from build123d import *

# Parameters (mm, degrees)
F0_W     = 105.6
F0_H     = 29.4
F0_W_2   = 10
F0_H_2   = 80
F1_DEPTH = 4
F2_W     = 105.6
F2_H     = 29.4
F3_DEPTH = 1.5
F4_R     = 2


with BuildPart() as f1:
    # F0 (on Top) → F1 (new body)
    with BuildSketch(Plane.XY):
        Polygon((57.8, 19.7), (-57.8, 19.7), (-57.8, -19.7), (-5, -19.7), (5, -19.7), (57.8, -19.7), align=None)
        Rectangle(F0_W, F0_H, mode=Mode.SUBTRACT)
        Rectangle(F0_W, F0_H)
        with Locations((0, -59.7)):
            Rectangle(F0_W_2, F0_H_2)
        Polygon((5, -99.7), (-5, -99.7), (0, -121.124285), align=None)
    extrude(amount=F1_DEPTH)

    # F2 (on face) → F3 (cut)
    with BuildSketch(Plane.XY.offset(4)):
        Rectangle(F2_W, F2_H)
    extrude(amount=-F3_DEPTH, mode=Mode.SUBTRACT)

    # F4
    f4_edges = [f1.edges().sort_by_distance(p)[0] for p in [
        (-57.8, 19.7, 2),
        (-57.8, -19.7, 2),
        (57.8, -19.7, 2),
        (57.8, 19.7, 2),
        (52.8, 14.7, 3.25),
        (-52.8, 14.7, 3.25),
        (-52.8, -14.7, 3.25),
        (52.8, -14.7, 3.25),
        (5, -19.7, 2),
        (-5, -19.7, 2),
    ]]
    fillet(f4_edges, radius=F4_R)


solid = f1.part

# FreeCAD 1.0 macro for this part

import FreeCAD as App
import Part
import Sketcher
from FreeCAD import Vector


def edges_at(feature, points):
    """Names of the edges that pass closest to the given points."""
    edges = feature.Shape.Edges
    near = lambda p: min(range(len(edges)), key=lambda i: edges[i].distToShape(Part.Vertex(*p))[0])
    return sorted({f"Edge{near(p) + 1}" for p in points})


def add_polygon(sketch, points):
    """Adds a closed chain of lines whose ends are joined by coincident constraints."""
    first, n = sketch.GeometryCount, len(points)
    for a, b in zip(points, points[1:] + points[:1]):
        sketch.addGeometry(Part.LineSegment(App.Vector(*a, 0), App.Vector(*b, 0)), False)
    for i in range(n):
        sketch.addConstraint(Sketcher.Constraint("Coincident", first + i, 2, first + (i + 1) % n, 1))

doc = App.newDocument("Part")
params = doc.addObject("Spreadsheet::Sheet", "Params")
for row, (alias, value) in enumerate([
    ("sketch1_height", "80 mm"),
    ("sketch1_length", "22 mm"),
    ("sketch1_width", "115.6 mm"),
    ("sketch1_width2", "52.8 mm"),
    ("sketch1_height2", "39.4 mm"),
    ("pad1_length", "4 mm"),
    ("sketch2_width", "105.6 mm"),
    ("sketch2_height", "29.4 mm"),
    ("pocket1_length", "1.5 mm"),
    ("fillet_radius", "2 mm"),
], start=1):
    params.set(f"A{row}", alias)
    params.set(f"B{row}", "=" + value)
    params.setAlias(f"B{row}", alias)

body = doc.addObject("PartDesign::Body", "Body")

sketch1 = body.newObject("Sketcher::SketchObject", "Sketch")
sketch1.AttachmentSupport = (doc.getObject("XY_Plane"), [""])
sketch1.MapMode = "FlatFace"
add_polygon(sketch1, [(58, 20), (-58, 20), (-58, -20), (-5, -20), (-5, -100), (0, -121), (5, -100), (5, -20), (58, -20)])
sketch1.addConstraint([
    Sketcher.Constraint("Horizontal", 0),
    Sketcher.Constraint("Vertical", 1),
    Sketcher.Constraint("Horizontal", 2),
    Sketcher.Constraint("Vertical", 3),
    Sketcher.Constraint("Vertical", 6),
    Sketcher.Constraint("Horizontal", 7),
    Sketcher.Constraint("Vertical", 8),
    Sketcher.Constraint("Symmetric", 0, 2, 7, 2, -1, 1),
    Sketcher.Constraint("Symmetric", 3, 2, 5, 2, -2),
    Sketcher.Constraint("PointOnObject", 4, 2, -2),
    Sketcher.Constraint("Horizontal", 2, 2, 6, 2),
    Sketcher.Constraint("DistanceY", 3, 2, 3, 1, 80.0),
    Sketcher.Constraint("Distance", 4, 22.0),
    Sketcher.Constraint("DistanceX", 0, 2, 0, 1, 115.6),
    Sketcher.Constraint("DistanceX", 2, 1, 2, 2, 52.8),
    Sketcher.Constraint("DistanceY", 1, 2, 1, 1, 39.4),
])
sketch1.setExpression("Constraints[20]", "Params.sketch1_height")
sketch1.setExpression("Constraints[21]", "Params.sketch1_length")
sketch1.setExpression("Constraints[22]", "Params.sketch1_width")
sketch1.setExpression("Constraints[23]", "Params.sketch1_width2")
sketch1.setExpression("Constraints[24]", "Params.sketch1_height2")
pad1 = body.newObject("PartDesign::Pad", "Pad")
pad1.Profile = sketch1
pad1.setExpression("Length", "Params.pad1_length")

sketch2 = body.newObject("Sketcher::SketchObject", "Sketch001")
sketch2.AttachmentSupport = (doc.getObject("XY_Plane"), [""])
sketch2.MapMode = "FlatFace"
sketch2.AttachmentOffset = App.Placement(Vector(0, 0, 4), App.Rotation())
add_polygon(sketch2, [(-53, 15), (-53, -15), (53, -15), (53, 15)])
sketch2.addConstraint([
    Sketcher.Constraint("Vertical", 0),
    Sketcher.Constraint("Horizontal", 1),
    Sketcher.Constraint("Vertical", 2),
    Sketcher.Constraint("Horizontal", 3),
    Sketcher.Constraint("Symmetric", 0, 2, 2, 2, -1, 1),
    Sketcher.Constraint("DistanceX", 1, 1, 1, 2, 105.6),
    Sketcher.Constraint("DistanceY", 0, 2, 0, 1, 29.4),
])
sketch2.setExpression("Constraints[9]", "Params.sketch2_width")
sketch2.setExpression("Constraints[10]", "Params.sketch2_height")
pocket1 = body.newObject("PartDesign::Pocket", "Pocket")
pocket1.Profile = sketch2
pocket1.setExpression("Length", "Params.pocket1_length")
doc.recompute()

fillet = body.newObject("PartDesign::Fillet", "Fillet")
fillet.Base = (pocket1, edges_at(pocket1, [
    (-57.8, 19.7, 2),
    (-57.8, -19.7, 2),
    (57.8, -19.7, 2),
    (57.8, 19.7, 2),
    (52.8, 14.7, 3.25),
    (-52.8, 14.7, 3.25),
    (-52.8, -14.7, 3.25),
    (52.8, -14.7, 3.25),
    (5, -19.7, 2),
    (-5, -19.7, 2),
]))
fillet.setExpression("Radius", "Params.fillet_radius")

doc.recompute()
